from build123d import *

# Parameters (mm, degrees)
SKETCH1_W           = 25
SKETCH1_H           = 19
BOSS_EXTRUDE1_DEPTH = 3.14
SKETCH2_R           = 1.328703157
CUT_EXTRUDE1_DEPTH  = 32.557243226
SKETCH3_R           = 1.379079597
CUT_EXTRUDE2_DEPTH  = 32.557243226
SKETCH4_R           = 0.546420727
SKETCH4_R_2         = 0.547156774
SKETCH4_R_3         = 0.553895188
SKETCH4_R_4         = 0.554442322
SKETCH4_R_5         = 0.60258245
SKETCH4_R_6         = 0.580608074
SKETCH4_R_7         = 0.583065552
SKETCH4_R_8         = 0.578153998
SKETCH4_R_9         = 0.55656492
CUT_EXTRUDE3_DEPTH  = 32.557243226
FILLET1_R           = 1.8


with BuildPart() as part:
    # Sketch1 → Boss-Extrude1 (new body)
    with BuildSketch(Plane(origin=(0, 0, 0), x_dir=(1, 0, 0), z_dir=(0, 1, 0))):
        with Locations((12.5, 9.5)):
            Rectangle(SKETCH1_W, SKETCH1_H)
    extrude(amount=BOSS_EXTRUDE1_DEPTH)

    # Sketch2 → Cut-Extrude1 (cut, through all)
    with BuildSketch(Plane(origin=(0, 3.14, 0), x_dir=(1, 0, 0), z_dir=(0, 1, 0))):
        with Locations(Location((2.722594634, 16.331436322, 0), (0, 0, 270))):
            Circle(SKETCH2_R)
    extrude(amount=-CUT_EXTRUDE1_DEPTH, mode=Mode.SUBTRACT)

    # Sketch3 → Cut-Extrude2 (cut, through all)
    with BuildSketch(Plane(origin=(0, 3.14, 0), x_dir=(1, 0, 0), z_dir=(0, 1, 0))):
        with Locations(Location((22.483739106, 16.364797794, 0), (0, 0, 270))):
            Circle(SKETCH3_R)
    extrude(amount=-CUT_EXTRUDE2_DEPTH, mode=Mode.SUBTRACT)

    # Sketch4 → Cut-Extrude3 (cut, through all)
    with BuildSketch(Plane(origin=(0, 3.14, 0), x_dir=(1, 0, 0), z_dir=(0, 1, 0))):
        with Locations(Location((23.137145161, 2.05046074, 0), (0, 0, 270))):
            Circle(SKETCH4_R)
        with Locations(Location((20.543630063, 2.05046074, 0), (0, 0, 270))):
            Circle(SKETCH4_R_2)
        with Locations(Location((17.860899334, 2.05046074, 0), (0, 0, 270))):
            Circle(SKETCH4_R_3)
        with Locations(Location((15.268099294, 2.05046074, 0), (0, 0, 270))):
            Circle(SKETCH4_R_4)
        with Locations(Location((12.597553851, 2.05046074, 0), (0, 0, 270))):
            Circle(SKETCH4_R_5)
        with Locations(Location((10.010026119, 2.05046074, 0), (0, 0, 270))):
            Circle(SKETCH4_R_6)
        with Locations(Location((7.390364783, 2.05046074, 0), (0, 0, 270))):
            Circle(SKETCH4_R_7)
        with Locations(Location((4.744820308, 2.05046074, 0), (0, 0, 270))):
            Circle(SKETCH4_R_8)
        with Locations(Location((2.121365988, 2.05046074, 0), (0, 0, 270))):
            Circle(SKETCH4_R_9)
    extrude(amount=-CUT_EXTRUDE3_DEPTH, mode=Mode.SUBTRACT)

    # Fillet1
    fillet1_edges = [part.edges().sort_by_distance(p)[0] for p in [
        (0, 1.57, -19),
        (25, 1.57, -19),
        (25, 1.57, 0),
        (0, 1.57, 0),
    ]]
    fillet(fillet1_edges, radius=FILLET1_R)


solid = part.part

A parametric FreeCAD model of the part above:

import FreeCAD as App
import Part
import Sketcher
Q = App.Units.Quantity


def edges_at(feature, points):
    """Names of the edges that pass closest to the given points."""
    edges = feature.Shape.Edges
    near = lambda p: min(range(len(edges)), key=lambda i: edges[i].distToShape(Part.Vertex(*p))[0])
    return sorted({f"Edge{near(p) + 1}" for p in points})

doc = App.newDocument("Part")
body = doc.addObject("PartDesign::Body", "Body")

# Sketch on XZ plane
sketch1 = doc.addObject("Sketcher::SketchObject", "Sketch")
body.addObject(sketch1)
sketch1.AttachmentSupport = (doc.XZ_Plane, [""])
sketch1.MapMode = "FlatFace"
sketch1.addGeometry(Part.LineSegment(App.Vector(0, -19, 0), App.Vector(0, 0, 0)), False)
sketch1.addGeometry(Part.LineSegment(App.Vector(0, 0, 0), App.Vector(25, 0, 0)), False)
sketch1.addGeometry(Part.LineSegment(App.Vector(25, 0, 0), App.Vector(25, -19, 0)), False)
sketch1.addGeometry(Part.LineSegment(App.Vector(25, -19, 0), App.Vector(0, -19, 0)), False)
sketch1.addConstraint(Sketcher.Constraint("Coincident", 0, 2, 1, 1))
sketch1.addConstraint(Sketcher.Constraint("Coincident", 1, 2, 2, 1))
sketch1.addConstraint(Sketcher.Constraint("Coincident", 2, 2, 3, 1))
sketch1.addConstraint(Sketcher.Constraint("Coincident", 3, 2, 0, 1))
sketch1.addConstraint(Sketcher.Constraint("Vertical", 0))
sketch1.addConstraint(Sketcher.Constraint("Horizontal", 1))
sketch1.addConstraint(Sketcher.Constraint("Vertical", 2))
sketch1.addConstraint(Sketcher.Constraint("Horizontal", 3))
sketch1.addConstraint(Sketcher.Constraint("Coincident", 0, 2, -1, 1))
sketch1.addConstraint(Sketcher.Constraint("DistanceX", 1, 1, 1, 2, Q("25 mm")))
sketch1.addConstraint(Sketcher.Constraint("DistanceY", 0, 1, 0, 2, Q("19 mm")))
pad1 = doc.addObject("PartDesign::Pad", "Pad")
body.addObject(pad1)
pad1.Profile = sketch1
pad1.Length = 3.14
pad1.Reversed = True

# Sketch on XZ plane
sketch2 = doc.addObject("Sketcher::SketchObject", "Sketch001")
body.addObject(sketch2)
sketch2.AttachmentSupport = (doc.XZ_Plane, [""])
sketch2.MapMode = "FlatFace"
sketch2.AttachmentOffset = App.Placement(App.Vector(0, 0, -3.14), App.Rotation())
sketch2.addGeometry(Part.Circle(App.Vector(2.7, -16.3, 0), App.Vector(0, 0, 1), 1.3), False)
sketch2.addConstraint(Sketcher.Constraint("Diameter", 0, Q("2.657406 mm")))
sketch2.addConstraint(Sketcher.Constraint("DistanceX", -1, 1, 0, 3, Q("2.722595 mm")))
sketch2.addConstraint(Sketcher.Constraint("DistanceY", 0, 3, -1, 1, Q("16.331436 mm")))
pocket1 = doc.addObject("PartDesign::Pocket", "Pocket")
body.addObject(pocket1)
pocket1.Profile = sketch2
pocket1.Type = "ThroughAll"
pocket1.Reversed = True

# Sketch on XZ plane
sketch3 = doc.addObject("Sketcher::SketchObject", "Sketch002")
body.addObject(sketch3)
sketch3.AttachmentSupport = (doc.XZ_Plane, [""])
sketch3.MapMode = "FlatFace"
sketch3.AttachmentOffset = App.Placement(App.Vector(0, 0, -3.14), App.Rotation())
sketch3.addGeometry(Part.Circle(App.Vector(22.5, -16.4, 0), App.Vector(0, 0, 1), 1.4), False)
sketch3.addConstraint(Sketcher.Constraint("Diameter", 0, Q("2.758159 mm")))
sketch3.addConstraint(Sketcher.Constraint("DistanceX", -1, 1, 0, 3, Q("22.483739 mm")))
sketch3.addConstraint(Sketcher.Constraint("DistanceY", 0, 3, -1, 1, Q("16.364798 mm")))
pocket2 = doc.addObject("PartDesign::Pocket", "Pocket001")
body.addObject(pocket2)
pocket2.Profile = sketch3
pocket2.Type = "ThroughAll"
pocket2.Reversed = True

# Sketch on XZ plane
sketch4 = doc.addObject("Sketcher::SketchObject", "Sketch003")
body.addObject(sketch4)
sketch4.AttachmentSupport = (doc.XZ_Plane, [""])
sketch4.MapMode = "FlatFace"
sketch4.AttachmentOffset = App.Placement(App.Vector(0, 0, -3.14), App.Rotation())
sketch4.addGeometry(Part.Circle(App.Vector(23.1, -2.1, 0), App.Vector(0, 0, 1), 0.5), False)
sketch4.addGeometry(Part.Circle(App.Vector(20.5, -2.1, 0), App.Vector(0, 0, 1), 0.5), False)
sketch4.addGeometry(Part.Circle(App.Vector(17.9, -2.1, 0), App.Vector(0, 0, 1), 0.6), False)
sketch4.addGeometry(Part.Circle(App.Vector(15.3, -2.1, 0), App.Vector(0, 0, 1), 0.6), False)
sketch4.addGeometry(Part.Circle(App.Vector(12.6, -2.1, 0), App.Vector(0, 0, 1), 0.6), False)
sketch4.addGeometry(Part.Circle(App.Vector(10, -2.1, 0), App.Vector(0, 0, 1), 0.6), False)
sketch4.addGeometry(Part.Circle(App.Vector(7.4, -2.1, 0), App.Vector(0, 0, 1), 0.6), False)
sketch4.addGeometry(Part.Circle(App.Vector(4.7, -2.1, 0), App.Vector(0, 0, 1), 0.6), False)
sketch4.addGeometry(Part.Circle(App.Vector(2.1, -2.1, 0), App.Vector(0, 0, 1), 0.6), False)
sketch4.addConstraint(Sketcher.Constraint("Horizontal", 0, 3, 1, 3))
sketch4.addConstraint(Sketcher.Constraint("Horizontal", 1, 3, 2, 3))
sketch4.addConstraint(Sketcher.Constraint("Horizontal", 2, 3, 3, 3))
sketch4.addConstraint(Sketcher.Constraint("Horizontal", 3, 3, 4, 3))
sketch4.addConstraint(Sketcher.Constraint("Horizontal", 4, 3, 5, 3))
sketch4.addConstraint(Sketcher.Constraint("Horizontal", 5, 3, 6, 3))
sketch4.addConstraint(Sketcher.Constraint("Horizontal", 6, 3, 7, 3))
sketch4.addConstraint(Sketcher.Constraint("Horizontal", 7, 3, 8, 3))
sketch4.addConstraint(Sketcher.Constraint("Diameter", 0, Q("1.092841 mm")))
sketch4.addConstraint(Sketcher.Constraint("Diameter", 2, Q("1.10779 mm")))
sketch4.addConstraint(Sketcher.Constraint("Diameter", 6, Q("1.166131 mm")))
sketch4.addConstraint(Sketcher.Constraint("Diameter", 8, Q("1.11313 mm")))
sketch4.addConstraint(Sketcher.Constraint("Diameter", 1, Q("1.094314 mm")))
sketch4.addConstraint(Sketcher.Constraint("Diameter", 3, Q("1.108885 mm")))
sketch4.addConstraint(Sketcher.Constraint("Diameter", 4, Q("1.205165 mm")))
sketch4.addConstraint(Sketcher.Constraint("Diameter", 5, Q("1.161216 mm")))
sketch4.addConstraint(Sketcher.Constraint("Diameter", 7, Q("1.156308 mm")))
sketch4.addConstraint(Sketcher.Constraint("DistanceX", 8, 3, 6, 3, Q("5.268999 mm")))
sketch4.addConstraint(Sketcher.Constraint("DistanceX", -1, 1, 2, 3, Q("17.860899 mm")))
sketch4.addConstraint(Sketcher.Constraint("DistanceX", -1, 1, 3, 3, Q("15.268099 mm")))
sketch4.addConstraint(Sketcher.Constraint("DistanceY", 0, 3, -1, 1, Q("2.050461 mm")))
sketch4.addConstraint(Sketcher.Constraint("DistanceX", -1, 1, 1, 3, Q("20.54363 mm")))
sketch4.addConstraint(Sketcher.Constraint("DistanceX", -1, 1, 7, 3, Q("4.74482 mm")))
sketch4.addConstraint(Sketcher.Constraint("DistanceX", 4, 3, 0, 3, Q("10.539591 mm")))
sketch4.addConstraint(Sketcher.Constraint("DistanceX", 5, 3, 0, 3, Q("13.127119 mm")))
sketch4.addConstraint(Sketcher.Constraint("DistanceX", 6, 3, 5, 3, Q("2.619661 mm")))
sketch4.addConstraint(Sketcher.Constraint("DistanceX", -1, 1, 0, 3, Q("23.137145 mm")))
pocket3 = doc.addObject("PartDesign::Pocket", "Pocket002")
body.addObject(pocket3)
pocket3.Profile = sketch4
pocket3.Type = "ThroughAll"
pocket3.Reversed = True
doc.recompute()

fillet = doc.addObject("PartDesign::Fillet", "Fillet")
body.addObject(fillet)
fillet.Base = (pocket3, edges_at(pocket3, [
    (0, 1.57, -19),
    (25, 1.57, -19),
    (25, 1.57, 0),
    (0, 1.57, 0),
]))
fillet.Radius = 1.8

doc.recompute()
